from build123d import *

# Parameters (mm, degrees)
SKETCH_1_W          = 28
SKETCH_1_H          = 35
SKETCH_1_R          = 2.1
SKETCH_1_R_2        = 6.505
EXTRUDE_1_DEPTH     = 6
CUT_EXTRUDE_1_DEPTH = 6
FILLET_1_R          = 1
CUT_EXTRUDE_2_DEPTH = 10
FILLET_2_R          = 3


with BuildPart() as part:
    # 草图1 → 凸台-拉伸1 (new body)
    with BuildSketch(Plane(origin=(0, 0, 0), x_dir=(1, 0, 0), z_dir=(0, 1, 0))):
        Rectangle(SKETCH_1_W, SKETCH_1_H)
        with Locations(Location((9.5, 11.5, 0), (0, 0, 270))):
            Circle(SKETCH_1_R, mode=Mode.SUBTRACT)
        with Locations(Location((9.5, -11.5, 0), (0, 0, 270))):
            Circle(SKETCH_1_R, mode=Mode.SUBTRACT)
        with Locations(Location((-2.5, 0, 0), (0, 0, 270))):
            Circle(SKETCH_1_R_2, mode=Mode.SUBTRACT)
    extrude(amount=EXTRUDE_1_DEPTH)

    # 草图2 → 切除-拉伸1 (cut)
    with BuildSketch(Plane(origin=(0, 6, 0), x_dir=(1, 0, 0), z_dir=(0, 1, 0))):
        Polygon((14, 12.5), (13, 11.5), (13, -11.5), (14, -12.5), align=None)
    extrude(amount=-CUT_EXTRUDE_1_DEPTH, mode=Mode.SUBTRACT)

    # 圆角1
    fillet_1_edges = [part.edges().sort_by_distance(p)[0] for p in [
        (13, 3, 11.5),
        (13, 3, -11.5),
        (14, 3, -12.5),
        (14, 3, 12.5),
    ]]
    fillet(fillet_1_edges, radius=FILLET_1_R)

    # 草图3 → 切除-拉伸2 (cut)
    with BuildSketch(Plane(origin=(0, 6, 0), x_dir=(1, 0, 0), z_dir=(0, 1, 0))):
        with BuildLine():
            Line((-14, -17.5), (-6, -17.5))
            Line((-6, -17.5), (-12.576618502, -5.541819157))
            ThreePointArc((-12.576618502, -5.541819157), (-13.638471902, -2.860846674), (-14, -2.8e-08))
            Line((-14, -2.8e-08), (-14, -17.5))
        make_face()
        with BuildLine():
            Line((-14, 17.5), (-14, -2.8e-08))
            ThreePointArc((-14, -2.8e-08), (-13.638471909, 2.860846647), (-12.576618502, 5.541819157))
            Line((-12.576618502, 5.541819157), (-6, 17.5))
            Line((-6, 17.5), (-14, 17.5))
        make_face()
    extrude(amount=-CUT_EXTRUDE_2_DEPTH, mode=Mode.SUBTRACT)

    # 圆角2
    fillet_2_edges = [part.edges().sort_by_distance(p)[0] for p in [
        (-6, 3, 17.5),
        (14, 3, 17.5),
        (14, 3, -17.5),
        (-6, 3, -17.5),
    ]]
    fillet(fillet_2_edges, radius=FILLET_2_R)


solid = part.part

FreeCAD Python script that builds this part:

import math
import FreeCAD as App
import Part
import Sketcher
from FreeCAD import Vector


def edges_at(feature, points):
    """Names of the edges that pass closest to the given points."""
    edges = feature.Shape.Edges
    near = lambda p: min(range(len(edges)), key=lambda i: edges[i].distToShape(Part.Vertex(*p))[0])
    return sorted({f"Edge{near(p) + 1}" for p in points})


def add_polygon(sketch, points):
    """Adds a closed chain of lines whose ends are joined by coincident constraints."""
    first, n = sketch.GeometryCount, len(points)
    for a, b in zip(points, points[1:] + points[:1]):
        sketch.addGeometry(Part.LineSegment(App.Vector(*a, 0), App.Vector(*b, 0)), False)
    for i in range(n):
        sketch.addConstraint(Sketcher.Constraint("Coincident", first + i, 2, first + (i + 1) % n, 1))

doc = App.newDocument("Part")
params = doc.addObject("Spreadsheet::Sheet", "Params")
for row, (alias, value) in enumerate([
    ("sketch1_diameter", "4.2 mm"),
    ("sketch1_diameter2", "13.01 mm"),
    ("sketch1_width", "28 mm"),
    ("sketch1_height", "35 mm"),
    ("pad1_length", "6 mm"),
    ("sketch2_height", "23 mm"),
    ("sketch2_height2", "25 mm"),
    ("pocket1_length", "6 mm"),
    ("fillet_radius", "1 mm"),
    ("sketch3_radius", "11.5 mm"),
    ("sketch3_width", "8 mm"),
    ("sketch3_height", "17.5 mm"),
    ("pocket2_length", "10 mm"),
    ("fillet2_radius", "3 mm"),
], start=1):
    params.set(f"A{row}", alias)
    params.set(f"B{row}", "=" + value)
    params.setAlias(f"B{row}", alias)

body = doc.addObject("PartDesign::Body", "Body")

sketch1 = body.newObject("Sketcher::SketchObject", "Sketch")
sketch1.AttachmentSupport = (doc.getObject("XZ_Plane"), [""])
sketch1.MapMode = "FlatFace"
add_polygon(sketch1, [(-14, -17.5), (-14, 17.5), (14, 17.5), (14, -17.5)])
sketch1.addGeometry(Part.Circle(Vector(9.5, 11.5, 0), Vector(0, 0, 1), 2.1), False)
sketch1.addGeometry(Part.Circle(Vector(-2.5, 0, 0), Vector(0, 0, 1), 6.5), False)
sketch1.addGeometry(Part.Circle(Vector(9.5, -11.5, 0), Vector(0, 0, 1), 2.1), False)
sketch1.addConstraint([
    Sketcher.Constraint("Vertical", 0),
    Sketcher.Constraint("Horizontal", 1),
    Sketcher.Constraint("Vertical", 2),
    Sketcher.Constraint("Horizontal", 3),
    Sketcher.Constraint("Equal", 4, 6),
    Sketcher.Constraint("Symmetric", 0, 2, 2, 2, -1, 1),
    Sketcher.Constraint("Symmetric", 4, 3, 6, 3, -1),
    Sketcher.Constraint("PointOnObject", 5, 3, -1),
    Sketcher.Constraint("Diameter", 4, 4.2),
    Sketcher.Constraint("Diameter", 5, 13.01),
    Sketcher.Constraint("DistanceX", 1, 1, 1, 2, 28.0),
    Sketcher.Constraint("DistanceY", 0, 1, 0, 2, 35.0),
    Sketcher.Constraint("DistanceX", 5, 3, 4, 3, 12.0),
    Sketcher.Constraint("DistanceY", 6, 3, 4, 3, 23.0),
    Sketcher.Constraint("DistanceX", -1, 1, 4, 3, 9.5),
])
sketch1.setExpression("Constraints[12]", "Params.sketch1_diameter")
sketch1.setExpression("Constraints[13]", "Params.sketch1_diameter2")
sketch1.setExpression("Constraints[14]", "Params.sketch1_width")
sketch1.setExpression("Constraints[15]", "Params.sketch1_height")
pad1 = body.newObject("PartDesign::Pad", "Pad")
pad1.Profile = sketch1
pad1.setExpression("Length", "Params.pad1_length")
pad1.Reversed = True

sketch2 = body.newObject("Sketcher::SketchObject", "Sketch001")
sketch2.AttachmentSupport = (doc.getObject("XZ_Plane"), [""])
sketch2.MapMode = "FlatFace"
sketch2.AttachmentOffset = App.Placement(Vector(0, 0, -6), App.Rotation())
add_polygon(sketch2, [(14, -12.5), (13, -11.5), (13, 11.5), (14, 12.5)])
sketch2.addConstraint([
    Sketcher.Constraint("Vertical", 1),
    Sketcher.Constraint("Vertical", 3),
    Sketcher.Constraint("Perpendicular", 0, 2),
    Sketcher.Constraint("Equal", 0, 2),
    Sketcher.Constraint("DistanceY", 1, 1, 1, 2, 23.0),
    Sketcher.Constraint("DistanceY", 3, 2, 3, 1, 25.0),
    Sketcher.Constraint("DistanceX", -1, 1, 0, 2, 13.0),
    Sketcher.Constraint("DistanceY", 0, 2, -1, 1, 11.5),
])
sketch2.setExpression("Constraints[8]", "Params.sketch2_height")
sketch2.setExpression("Constraints[9]", "Params.sketch2_height2")
pocket1 = body.newObject("PartDesign::Pocket", "Pocket")
pocket1.Profile = sketch2
pocket1.setExpression("Length", "Params.pocket1_length")
pocket1.Reversed = True
doc.recompute()

fillet = body.newObject("PartDesign::Fillet", "Fillet")
fillet.Base = (pocket1, edges_at(pocket1, [
    (13, 3, 11.5),
    (13, 3, -11.5),
    (14, 3, -12.5),
    (14, 3, 12.5),
]))
fillet.setExpression("Radius", "Params.fillet_radius")

sketch3 = body.newObject("Sketcher::SketchObject", "Sketch002")
sketch3.AttachmentSupport = (doc.getObject("XZ_Plane"), [""])
sketch3.MapMode = "FlatFace"
sketch3.AttachmentOffset = App.Placement(Vector(0, 0, -6), App.Rotation())
sketch3.addGeometry([
    Part.LineSegment(Vector(-14, 18, 0), Vector(-6, 18, 0)),
    Part.LineSegment(Vector(-6, 18, 0), Vector(-13, 6, 0)),
    Part.ArcOfCircle(Part.Circle(Vector(-3, 0, 0), Vector(0, 0, 1), 11), math.radians(151), math.radians(180)),
    Part.LineSegment(Vector(-14, 0, 0), Vector(-14, 18, 0)),
    Part.LineSegment(Vector(-14, -18, 0), Vector(-14, 0, 0)),
    Part.ArcOfCircle(Part.Circle(Vector(-3, 0, 0), Vector(0, 0, 1), 11), math.radians(180), math.radians(209)),
    Part.LineSegment(Vector(-13, -6, 0), Vector(-6, -18, 0)),
    Part.LineSegment(Vector(-6, -18, 0), Vector(-14, -18, 0)),
], False)
sketch3.addConstraint([
    Sketcher.Constraint("Coincident", 0, 2, 1, 1),
    Sketcher.Constraint("Tangent", 1, 2, 2, 1),
    Sketcher.Constraint("Tangent", 2, 2, 3, 1),
    Sketcher.Constraint("Coincident", 3, 2, 0, 1),
    Sketcher.Constraint("Tangent", 4, 2, 5, 1),
    Sketcher.Constraint("Tangent", 5, 2, 6, 1),
    Sketcher.Constraint("Coincident", 6, 2, 7, 1),
    Sketcher.Constraint("Coincident", 7, 2, 4, 1),
    Sketcher.Constraint("Horizontal", 0),
    Sketcher.Constraint("Vertical", 3),
    Sketcher.Constraint("Vertical", 4),
    Sketcher.Constraint("Horizontal", 7),
    Sketcher.Constraint("Coincident", 5, 3, 2, 3),
    Sketcher.Constraint("Equal", 2, 5),
    Sketcher.Constraint("Symmetric", 1, 2, 5, 2, -1),
    Sketcher.Constraint("Vertical", 0, 2, 6, 2),
    Sketcher.Constraint("Radius", 2, 11.5),
    Sketcher.Constraint("DistanceX", 0, 1, 0, 2, 8.0),
    Sketcher.Constraint("DistanceY", 3, 1, 3, 2, 17.5),
    Sketcher.Constraint("DistanceX", 0, 2, -1, 1, 6.0),
])
sketch3.setExpression("Constraints[16]", "Params.sketch3_radius")
sketch3.setExpression("Constraints[17]", "Params.sketch3_width")
sketch3.setExpression("Constraints[18]", "Params.sketch3_height")
pocket2 = body.newObject("PartDesign::Pocket", "Pocket001")
pocket2.Profile = sketch3
pocket2.setExpression("Length", "Params.pocket2_length")
pocket2.Reversed = True
doc.recompute()

fillet2 = body.newObject("PartDesign::Fillet", "Fillet001")
fillet2.Base = (pocket2, edges_at(pocket2, [
    (-6, 3, 17.5),
    (14, 3, 17.5),
    (14, 3, -17.5),
    (-6, 3, -17.5),
]))
fillet2.setExpression("Radius", "Params.fillet2_radius")

doc.recompute()
